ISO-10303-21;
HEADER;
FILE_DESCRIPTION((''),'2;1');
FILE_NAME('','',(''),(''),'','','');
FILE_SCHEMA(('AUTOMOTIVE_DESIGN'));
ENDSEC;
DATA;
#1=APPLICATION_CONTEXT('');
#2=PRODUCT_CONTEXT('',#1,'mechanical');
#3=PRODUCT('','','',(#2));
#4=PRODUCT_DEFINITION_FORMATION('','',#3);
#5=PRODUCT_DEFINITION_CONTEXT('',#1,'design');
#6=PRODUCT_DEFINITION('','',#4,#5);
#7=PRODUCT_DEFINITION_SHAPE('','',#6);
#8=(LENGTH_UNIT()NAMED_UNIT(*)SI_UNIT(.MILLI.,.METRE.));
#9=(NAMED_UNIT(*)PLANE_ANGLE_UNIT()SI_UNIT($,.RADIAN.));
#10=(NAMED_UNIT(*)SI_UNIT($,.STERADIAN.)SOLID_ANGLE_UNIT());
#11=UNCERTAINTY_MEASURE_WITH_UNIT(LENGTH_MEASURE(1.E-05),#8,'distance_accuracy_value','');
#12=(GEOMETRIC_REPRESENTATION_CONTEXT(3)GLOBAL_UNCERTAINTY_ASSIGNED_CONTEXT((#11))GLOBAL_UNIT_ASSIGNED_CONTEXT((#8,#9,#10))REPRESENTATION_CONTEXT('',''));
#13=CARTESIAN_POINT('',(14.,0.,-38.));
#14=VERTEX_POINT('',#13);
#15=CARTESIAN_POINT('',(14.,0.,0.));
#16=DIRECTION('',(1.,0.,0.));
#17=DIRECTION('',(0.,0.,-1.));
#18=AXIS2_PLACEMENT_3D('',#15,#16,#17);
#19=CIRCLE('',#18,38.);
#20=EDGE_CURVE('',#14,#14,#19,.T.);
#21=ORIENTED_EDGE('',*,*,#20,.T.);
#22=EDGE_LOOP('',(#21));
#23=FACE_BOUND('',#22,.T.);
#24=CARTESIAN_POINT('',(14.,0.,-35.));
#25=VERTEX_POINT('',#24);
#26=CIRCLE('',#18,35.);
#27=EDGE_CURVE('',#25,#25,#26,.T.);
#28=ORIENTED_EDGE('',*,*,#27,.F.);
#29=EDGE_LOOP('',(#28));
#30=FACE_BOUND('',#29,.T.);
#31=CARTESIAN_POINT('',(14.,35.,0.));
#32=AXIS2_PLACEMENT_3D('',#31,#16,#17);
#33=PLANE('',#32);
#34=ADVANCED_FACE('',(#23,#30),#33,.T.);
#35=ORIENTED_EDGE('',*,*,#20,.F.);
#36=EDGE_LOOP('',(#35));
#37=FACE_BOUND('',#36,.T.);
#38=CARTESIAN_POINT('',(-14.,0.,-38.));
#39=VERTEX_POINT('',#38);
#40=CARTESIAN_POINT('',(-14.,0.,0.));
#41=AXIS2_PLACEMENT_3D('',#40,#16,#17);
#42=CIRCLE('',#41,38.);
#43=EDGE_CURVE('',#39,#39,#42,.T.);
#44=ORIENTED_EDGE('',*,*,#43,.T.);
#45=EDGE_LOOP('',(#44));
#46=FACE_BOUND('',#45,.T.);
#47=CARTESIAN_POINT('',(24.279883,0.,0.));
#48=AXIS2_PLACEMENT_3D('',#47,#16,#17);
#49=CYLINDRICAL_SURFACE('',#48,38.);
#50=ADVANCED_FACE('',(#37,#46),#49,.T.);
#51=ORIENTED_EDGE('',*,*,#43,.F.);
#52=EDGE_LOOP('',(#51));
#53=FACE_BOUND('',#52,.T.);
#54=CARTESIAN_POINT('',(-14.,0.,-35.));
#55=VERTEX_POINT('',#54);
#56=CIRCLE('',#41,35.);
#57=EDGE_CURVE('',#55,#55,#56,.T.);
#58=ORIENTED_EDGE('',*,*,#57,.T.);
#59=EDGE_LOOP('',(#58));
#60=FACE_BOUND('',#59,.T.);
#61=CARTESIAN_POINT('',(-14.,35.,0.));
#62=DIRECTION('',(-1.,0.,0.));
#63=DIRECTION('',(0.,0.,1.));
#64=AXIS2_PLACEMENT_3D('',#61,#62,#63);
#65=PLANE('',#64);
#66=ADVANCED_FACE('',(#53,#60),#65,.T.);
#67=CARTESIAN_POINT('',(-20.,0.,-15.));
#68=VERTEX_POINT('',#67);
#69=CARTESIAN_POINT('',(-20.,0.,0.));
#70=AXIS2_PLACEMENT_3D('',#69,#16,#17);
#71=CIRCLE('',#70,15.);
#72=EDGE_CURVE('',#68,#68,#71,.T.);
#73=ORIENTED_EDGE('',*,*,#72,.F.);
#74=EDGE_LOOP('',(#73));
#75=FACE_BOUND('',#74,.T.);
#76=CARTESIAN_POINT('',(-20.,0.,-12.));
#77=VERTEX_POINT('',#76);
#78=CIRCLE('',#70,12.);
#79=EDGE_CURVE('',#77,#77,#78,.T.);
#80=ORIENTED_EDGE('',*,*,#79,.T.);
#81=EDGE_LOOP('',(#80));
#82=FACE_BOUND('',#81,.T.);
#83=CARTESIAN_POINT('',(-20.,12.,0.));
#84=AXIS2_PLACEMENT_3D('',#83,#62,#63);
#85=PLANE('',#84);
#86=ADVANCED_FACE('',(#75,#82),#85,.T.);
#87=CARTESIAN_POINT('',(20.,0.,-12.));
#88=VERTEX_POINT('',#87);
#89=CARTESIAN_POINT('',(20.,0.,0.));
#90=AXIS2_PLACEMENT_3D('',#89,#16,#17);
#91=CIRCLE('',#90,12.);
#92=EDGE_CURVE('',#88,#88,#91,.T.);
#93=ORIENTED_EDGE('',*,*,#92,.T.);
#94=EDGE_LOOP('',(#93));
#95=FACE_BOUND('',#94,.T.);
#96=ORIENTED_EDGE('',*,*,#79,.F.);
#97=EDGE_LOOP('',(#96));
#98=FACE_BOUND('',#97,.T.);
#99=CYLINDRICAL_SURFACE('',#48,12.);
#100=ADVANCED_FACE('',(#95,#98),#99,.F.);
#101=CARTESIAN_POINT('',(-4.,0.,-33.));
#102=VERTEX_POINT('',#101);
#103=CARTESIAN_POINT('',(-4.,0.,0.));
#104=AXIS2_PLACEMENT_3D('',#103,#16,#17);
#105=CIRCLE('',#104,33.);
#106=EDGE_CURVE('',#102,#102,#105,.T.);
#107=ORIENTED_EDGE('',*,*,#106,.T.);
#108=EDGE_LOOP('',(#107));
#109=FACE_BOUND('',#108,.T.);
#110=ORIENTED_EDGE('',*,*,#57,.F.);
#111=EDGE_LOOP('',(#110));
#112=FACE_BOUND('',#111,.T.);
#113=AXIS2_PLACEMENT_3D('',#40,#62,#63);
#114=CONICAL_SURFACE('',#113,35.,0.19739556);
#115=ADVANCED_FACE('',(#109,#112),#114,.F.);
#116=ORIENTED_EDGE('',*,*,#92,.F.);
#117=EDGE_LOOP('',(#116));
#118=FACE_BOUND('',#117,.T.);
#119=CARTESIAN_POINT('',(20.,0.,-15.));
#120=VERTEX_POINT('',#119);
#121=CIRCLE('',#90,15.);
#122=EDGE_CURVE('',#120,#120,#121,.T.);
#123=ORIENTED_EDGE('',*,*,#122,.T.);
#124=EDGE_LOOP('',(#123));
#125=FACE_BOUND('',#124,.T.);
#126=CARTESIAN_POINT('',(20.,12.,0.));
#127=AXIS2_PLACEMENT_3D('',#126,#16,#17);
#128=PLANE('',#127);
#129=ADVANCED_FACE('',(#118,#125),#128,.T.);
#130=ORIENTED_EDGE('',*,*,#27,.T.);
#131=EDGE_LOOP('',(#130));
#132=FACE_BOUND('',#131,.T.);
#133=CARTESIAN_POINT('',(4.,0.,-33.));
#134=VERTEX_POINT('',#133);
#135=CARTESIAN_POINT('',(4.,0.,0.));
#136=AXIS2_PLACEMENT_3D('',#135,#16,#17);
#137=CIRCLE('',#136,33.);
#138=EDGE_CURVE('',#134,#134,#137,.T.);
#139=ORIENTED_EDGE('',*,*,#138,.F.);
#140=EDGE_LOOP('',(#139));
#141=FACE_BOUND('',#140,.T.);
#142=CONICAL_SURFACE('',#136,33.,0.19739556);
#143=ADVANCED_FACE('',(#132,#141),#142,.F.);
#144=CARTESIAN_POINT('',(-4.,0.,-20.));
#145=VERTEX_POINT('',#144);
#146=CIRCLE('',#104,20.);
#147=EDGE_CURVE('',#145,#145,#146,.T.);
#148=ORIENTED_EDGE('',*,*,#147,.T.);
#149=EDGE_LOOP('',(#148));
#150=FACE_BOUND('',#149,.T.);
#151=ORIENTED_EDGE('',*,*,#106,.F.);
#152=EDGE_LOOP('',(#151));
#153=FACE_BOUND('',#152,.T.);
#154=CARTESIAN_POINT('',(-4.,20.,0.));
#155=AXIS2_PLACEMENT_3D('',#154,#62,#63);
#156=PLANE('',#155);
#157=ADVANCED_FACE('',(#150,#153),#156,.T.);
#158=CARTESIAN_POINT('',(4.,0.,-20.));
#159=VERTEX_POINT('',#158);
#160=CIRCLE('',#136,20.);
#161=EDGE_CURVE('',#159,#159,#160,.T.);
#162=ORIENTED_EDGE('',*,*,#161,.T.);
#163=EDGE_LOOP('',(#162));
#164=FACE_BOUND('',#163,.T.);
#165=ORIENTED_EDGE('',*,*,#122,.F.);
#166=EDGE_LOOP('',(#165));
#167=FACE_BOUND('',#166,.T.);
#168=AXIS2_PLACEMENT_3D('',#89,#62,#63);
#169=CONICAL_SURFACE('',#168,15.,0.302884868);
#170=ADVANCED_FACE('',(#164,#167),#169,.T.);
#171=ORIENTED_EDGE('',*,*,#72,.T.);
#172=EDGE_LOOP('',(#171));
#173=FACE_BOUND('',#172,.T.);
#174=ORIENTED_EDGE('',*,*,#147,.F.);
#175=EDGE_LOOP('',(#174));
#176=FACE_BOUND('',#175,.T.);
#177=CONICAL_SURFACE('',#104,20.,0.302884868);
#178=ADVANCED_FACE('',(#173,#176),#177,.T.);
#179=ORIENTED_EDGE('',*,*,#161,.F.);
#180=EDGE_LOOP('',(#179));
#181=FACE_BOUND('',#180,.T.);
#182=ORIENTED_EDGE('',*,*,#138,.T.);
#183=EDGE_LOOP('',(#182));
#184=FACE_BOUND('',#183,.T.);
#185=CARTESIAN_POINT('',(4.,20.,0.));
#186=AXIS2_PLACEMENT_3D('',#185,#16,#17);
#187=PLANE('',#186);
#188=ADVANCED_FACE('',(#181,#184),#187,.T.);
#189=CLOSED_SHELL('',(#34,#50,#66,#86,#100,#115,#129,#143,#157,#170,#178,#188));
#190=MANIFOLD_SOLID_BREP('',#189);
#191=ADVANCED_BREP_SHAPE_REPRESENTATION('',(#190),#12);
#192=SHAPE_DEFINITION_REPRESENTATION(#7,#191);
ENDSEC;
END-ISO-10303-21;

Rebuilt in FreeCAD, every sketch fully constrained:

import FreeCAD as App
import Part
import Sketcher


def add_polygon(sketch, points):
    """Adds a closed chain of lines whose ends are joined by coincident constraints."""
    first, n = sketch.GeometryCount, len(points)
    for a, b in zip(points, points[1:] + points[:1]):
        sketch.addGeometry(Part.LineSegment(App.Vector(*a, 0), App.Vector(*b, 0)), False)
    for i in range(n):
        sketch.addConstraint(Sketcher.Constraint("Coincident", first + i, 2, first + (i + 1) % n, 1))

doc = App.newDocument("Part")
body = doc.addObject("PartDesign::Body", "Body")

sketch1 = doc.addObject("Sketcher::SketchObject", "Sketch")
body.addObject(sketch1)
sketch1.AttachmentSupport = (doc.XY_Plane, [""])
sketch1.MapMode = "FlatFace"
add_polygon(sketch1, [(20, 12), (20, 15), (4, 20), (4, 33), (14, 35), (14, 38), (-14, 38), (-14, 35), (-4, 33), (-4, 20), (-20, 15), (-20, 12)])
sketch1.addConstraint([
    Sketcher.Constraint("Vertical", 0),
    Sketcher.Constraint("Vertical", 2),
    Sketcher.Constraint("Vertical", 4),
    Sketcher.Constraint("Horizontal", 5),
    Sketcher.Constraint("Vertical", 6),
    Sketcher.Constraint("Vertical", 8),
    Sketcher.Constraint("Vertical", 10),
    Sketcher.Constraint("Horizontal", 11),
    Sketcher.Constraint("Symmetric", 3, 2, 6, 2, -2),
    Sketcher.Constraint("Symmetric", 2, 2, 7, 2, -2),
    Sketcher.Constraint("Symmetric", 0, 2, 9, 2, -2),
    Sketcher.Constraint("Horizontal", 1, 2, 8, 2),
    Sketcher.Constraint("Equal", 0, 4),
    Sketcher.Constraint("DistanceX", 5, 2, 5, 1, 28.0),
    Sketcher.Constraint("DistanceX", 11, 1, 11, 2, 40.0),
    Sketcher.Constraint("DistanceY", 0, 1, 0, 2, 3.0),
    Sketcher.Constraint("DistanceY", 2, 1, 2, 2, 13.0),
    Sketcher.Constraint("DistanceY", -1, 1, 0, 2, 15.0),
    Sketcher.Constraint("DistanceX", -1, 1, 1, 2, 4.0),
    Sketcher.Constraint("DistanceY", -1, 1, 1, 2, 20.0),
    Sketcher.Constraint("DistanceY", -1, 1, 3, 2, 35.0),
])
revolution = doc.addObject("PartDesign::Revolution", "Revolution")
body.addObject(revolution)
revolution.Profile = sketch1
revolution.ReferenceAxis = (sketch1, ["H_Axis"])
revolution.Angle = 360

doc.recompute()
